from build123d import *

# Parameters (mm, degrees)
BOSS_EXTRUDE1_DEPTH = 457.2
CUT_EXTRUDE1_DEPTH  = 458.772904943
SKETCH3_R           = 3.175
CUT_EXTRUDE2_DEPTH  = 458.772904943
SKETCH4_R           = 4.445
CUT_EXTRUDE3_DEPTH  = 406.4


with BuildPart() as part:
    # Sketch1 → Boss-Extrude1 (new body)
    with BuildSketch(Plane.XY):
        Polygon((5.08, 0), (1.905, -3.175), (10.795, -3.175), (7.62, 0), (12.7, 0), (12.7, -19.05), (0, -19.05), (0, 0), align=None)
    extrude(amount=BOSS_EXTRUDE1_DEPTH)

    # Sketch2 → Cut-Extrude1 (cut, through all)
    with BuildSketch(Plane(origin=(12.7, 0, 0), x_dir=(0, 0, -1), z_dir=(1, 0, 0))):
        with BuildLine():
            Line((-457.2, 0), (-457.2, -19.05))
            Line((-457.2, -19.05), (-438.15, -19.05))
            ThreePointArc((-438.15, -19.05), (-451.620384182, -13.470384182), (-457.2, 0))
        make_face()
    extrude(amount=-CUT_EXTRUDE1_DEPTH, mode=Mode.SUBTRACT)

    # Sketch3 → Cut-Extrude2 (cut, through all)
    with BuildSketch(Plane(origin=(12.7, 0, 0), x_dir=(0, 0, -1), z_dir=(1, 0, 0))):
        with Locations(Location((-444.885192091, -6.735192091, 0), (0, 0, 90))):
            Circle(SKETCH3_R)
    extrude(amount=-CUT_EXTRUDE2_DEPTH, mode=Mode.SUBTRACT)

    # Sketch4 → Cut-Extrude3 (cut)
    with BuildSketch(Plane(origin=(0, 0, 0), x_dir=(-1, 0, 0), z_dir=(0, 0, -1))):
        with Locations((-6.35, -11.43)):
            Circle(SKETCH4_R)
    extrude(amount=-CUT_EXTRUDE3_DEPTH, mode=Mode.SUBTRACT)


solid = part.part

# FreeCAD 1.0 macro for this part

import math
import FreeCAD as App
import Part
import Sketcher
Q = App.Units.Quantity


def add_polygon(sketch, points):
    """Adds a closed chain of lines whose ends are joined by coincident constraints."""
    first, n = sketch.GeometryCount, len(points)
    for a, b in zip(points, points[1:] + points[:1]):
        sketch.addGeometry(Part.LineSegment(App.Vector(*a, 0), App.Vector(*b, 0)), False)
    for i in range(n):
        sketch.addConstraint(Sketcher.Constraint("Coincident", first + i, 2, first + (i + 1) % n, 1))

doc = App.newDocument("Part")
body = doc.addObject("PartDesign::Body", "Body")

sketch1 = body.newObject("Sketcher::SketchObject", "Sketch")
sketch1.AttachmentSupport = (doc.getObject("XY_Plane"), [""])
sketch1.MapMode = "FlatFace"
add_polygon(sketch1, [(1.9, -3.2), (5.1, 0), (0, 0), (0, -19.1), (12.7, -19.1), (12.7, 0), (7.6, 0), (10.8, -3.2)])
sketch1.addConstraint(Sketcher.Constraint("Horizontal", 1))
sketch1.addConstraint(Sketcher.Constraint("Vertical", 2))
sketch1.addConstraint(Sketcher.Constraint("Horizontal", 3))
sketch1.addConstraint(Sketcher.Constraint("Vertical", 4))
sketch1.addConstraint(Sketcher.Constraint("Horizontal", 5))
sketch1.addConstraint(Sketcher.Constraint("Horizontal", 7))
sketch1.addConstraint(Sketcher.Constraint("Coincident", 1, 2, -1, 1))
sketch1.addConstraint(Sketcher.Constraint("PointOnObject", 4, 2, -1))
sketch1.addConstraint(Sketcher.Constraint("Perpendicular", 0, 6))
sketch1.addConstraint(Sketcher.Constraint("Equal", 1, 5))
sketch1.addConstraint(Sketcher.Constraint("Equal", 0, 6))
sketch1.addConstraint(Sketcher.Constraint("DistanceX", 1, 2, 1, 1, Q("0.2 in")))
sketch1.addConstraint(Sketcher.Constraint("DistanceX", 3, 1, 3, 2, Q("0.5 in")))
sketch1.addConstraint(Sketcher.Constraint("DistanceX", 7, 2, 7, 1, Q("0.35 in")))
sketch1.addConstraint(Sketcher.Constraint("DistanceY", 2, 2, 2, 1, Q("0.75 in")))
pad1 = body.newObject("PartDesign::Pad", "Pad")
pad1.Profile = sketch1
pad1.Length = Q("18 in")

sketch2 = body.newObject("Sketcher::SketchObject", "Sketch001")
sketch2.AttachmentSupport = (doc.getObject("YZ_Plane"), [""])
sketch2.MapMode = "FlatFace"
sketch2.AttachmentOffset = App.Placement(App.Vector(0, 0, 0.5 * 25.4), App.Rotation())
sketch2.addGeometry(Part.LineSegment(App.Vector(0, 457, 0), App.Vector(-19, 457, 0)), False)
sketch2.addGeometry(Part.LineSegment(App.Vector(-19, 457, 0), App.Vector(-19, 438, 0)), False)
sketch2.addGeometry(Part.ArcOfCircle(Part.Circle(App.Vector(0, 438, 0), App.Vector(0, 0, 1), 19), math.radians(90), math.radians(180)), False)
sketch2.addConstraint(Sketcher.Constraint("Coincident", 0, 2, 1, 1))
sketch2.addConstraint(Sketcher.Constraint("Tangent", 1, 2, 2, 2))
sketch2.addConstraint(Sketcher.Constraint("Tangent", 2, 1, 0, 1))
sketch2.addConstraint(Sketcher.Constraint("Horizontal", 0))
sketch2.addConstraint(Sketcher.Constraint("Vertical", 1))
sketch2.addConstraint(Sketcher.Constraint("PointOnObject", 2, 3, -2))
sketch2.addConstraint(Sketcher.Constraint("Radius", 2, Q("0.75 in")))
sketch2.addConstraint(Sketcher.Constraint("DistanceY", -1, 1, 0, 2, Q("18 in")))
pocket1 = body.newObject("PartDesign::Pocket", "Pocket")
pocket1.Profile = sketch2
pocket1.Type = "ThroughAll"

sketch3 = body.newObject("Sketcher::SketchObject", "Sketch002")
sketch3.AttachmentSupport = (doc.getObject("YZ_Plane"), [""])
sketch3.MapMode = "FlatFace"
sketch3.AttachmentOffset = App.Placement(App.Vector(0, 0, 0.5 * 25.4), App.Rotation())
sketch3.addGeometry(Part.Circle(App.Vector(-6.7, 444.9, 0), App.Vector(0, 0, 1), 3.2), False)
sketch3.addConstraint(Sketcher.Constraint("Diameter", 0, Q("0.25 in")))
sketch3.addConstraint(Sketcher.Constraint("DistanceX", 0, 3, -1, 1, 6.735192))
sketch3.addConstraint(Sketcher.Constraint("DistanceY", -1, 1, 0, 3, 444.885192))
pocket2 = body.newObject("PartDesign::Pocket", "Pocket001")
pocket2.Profile = sketch3
pocket2.Type = "ThroughAll"

sketch4 = body.newObject("Sketcher::SketchObject", "Sketch003")
sketch4.AttachmentSupport = (doc.getObject("XY_Plane"), [""])
sketch4.MapMode = "FlatFace"
sketch4.addGeometry(Part.Circle(App.Vector(6.3, -11.4, 0), App.Vector(0, 0, 1), 4.4), False)
sketch4.addConstraint(Sketcher.Constraint("Diameter", 0, Q("0.35 in")))
sketch4.addConstraint(Sketcher.Constraint("DistanceX", -1, 1, 0, 3, Q("0.25 in")))
sketch4.addConstraint(Sketcher.Constraint("DistanceY", 0, 3, -1, 1, Q("0.45 in")))
pocket3 = body.newObject("PartDesign::Pocket", "Pocket002")
pocket3.Profile = sketch4
pocket3.Length = Q("16 in")
pocket3.Reversed = True

doc.recompute()
